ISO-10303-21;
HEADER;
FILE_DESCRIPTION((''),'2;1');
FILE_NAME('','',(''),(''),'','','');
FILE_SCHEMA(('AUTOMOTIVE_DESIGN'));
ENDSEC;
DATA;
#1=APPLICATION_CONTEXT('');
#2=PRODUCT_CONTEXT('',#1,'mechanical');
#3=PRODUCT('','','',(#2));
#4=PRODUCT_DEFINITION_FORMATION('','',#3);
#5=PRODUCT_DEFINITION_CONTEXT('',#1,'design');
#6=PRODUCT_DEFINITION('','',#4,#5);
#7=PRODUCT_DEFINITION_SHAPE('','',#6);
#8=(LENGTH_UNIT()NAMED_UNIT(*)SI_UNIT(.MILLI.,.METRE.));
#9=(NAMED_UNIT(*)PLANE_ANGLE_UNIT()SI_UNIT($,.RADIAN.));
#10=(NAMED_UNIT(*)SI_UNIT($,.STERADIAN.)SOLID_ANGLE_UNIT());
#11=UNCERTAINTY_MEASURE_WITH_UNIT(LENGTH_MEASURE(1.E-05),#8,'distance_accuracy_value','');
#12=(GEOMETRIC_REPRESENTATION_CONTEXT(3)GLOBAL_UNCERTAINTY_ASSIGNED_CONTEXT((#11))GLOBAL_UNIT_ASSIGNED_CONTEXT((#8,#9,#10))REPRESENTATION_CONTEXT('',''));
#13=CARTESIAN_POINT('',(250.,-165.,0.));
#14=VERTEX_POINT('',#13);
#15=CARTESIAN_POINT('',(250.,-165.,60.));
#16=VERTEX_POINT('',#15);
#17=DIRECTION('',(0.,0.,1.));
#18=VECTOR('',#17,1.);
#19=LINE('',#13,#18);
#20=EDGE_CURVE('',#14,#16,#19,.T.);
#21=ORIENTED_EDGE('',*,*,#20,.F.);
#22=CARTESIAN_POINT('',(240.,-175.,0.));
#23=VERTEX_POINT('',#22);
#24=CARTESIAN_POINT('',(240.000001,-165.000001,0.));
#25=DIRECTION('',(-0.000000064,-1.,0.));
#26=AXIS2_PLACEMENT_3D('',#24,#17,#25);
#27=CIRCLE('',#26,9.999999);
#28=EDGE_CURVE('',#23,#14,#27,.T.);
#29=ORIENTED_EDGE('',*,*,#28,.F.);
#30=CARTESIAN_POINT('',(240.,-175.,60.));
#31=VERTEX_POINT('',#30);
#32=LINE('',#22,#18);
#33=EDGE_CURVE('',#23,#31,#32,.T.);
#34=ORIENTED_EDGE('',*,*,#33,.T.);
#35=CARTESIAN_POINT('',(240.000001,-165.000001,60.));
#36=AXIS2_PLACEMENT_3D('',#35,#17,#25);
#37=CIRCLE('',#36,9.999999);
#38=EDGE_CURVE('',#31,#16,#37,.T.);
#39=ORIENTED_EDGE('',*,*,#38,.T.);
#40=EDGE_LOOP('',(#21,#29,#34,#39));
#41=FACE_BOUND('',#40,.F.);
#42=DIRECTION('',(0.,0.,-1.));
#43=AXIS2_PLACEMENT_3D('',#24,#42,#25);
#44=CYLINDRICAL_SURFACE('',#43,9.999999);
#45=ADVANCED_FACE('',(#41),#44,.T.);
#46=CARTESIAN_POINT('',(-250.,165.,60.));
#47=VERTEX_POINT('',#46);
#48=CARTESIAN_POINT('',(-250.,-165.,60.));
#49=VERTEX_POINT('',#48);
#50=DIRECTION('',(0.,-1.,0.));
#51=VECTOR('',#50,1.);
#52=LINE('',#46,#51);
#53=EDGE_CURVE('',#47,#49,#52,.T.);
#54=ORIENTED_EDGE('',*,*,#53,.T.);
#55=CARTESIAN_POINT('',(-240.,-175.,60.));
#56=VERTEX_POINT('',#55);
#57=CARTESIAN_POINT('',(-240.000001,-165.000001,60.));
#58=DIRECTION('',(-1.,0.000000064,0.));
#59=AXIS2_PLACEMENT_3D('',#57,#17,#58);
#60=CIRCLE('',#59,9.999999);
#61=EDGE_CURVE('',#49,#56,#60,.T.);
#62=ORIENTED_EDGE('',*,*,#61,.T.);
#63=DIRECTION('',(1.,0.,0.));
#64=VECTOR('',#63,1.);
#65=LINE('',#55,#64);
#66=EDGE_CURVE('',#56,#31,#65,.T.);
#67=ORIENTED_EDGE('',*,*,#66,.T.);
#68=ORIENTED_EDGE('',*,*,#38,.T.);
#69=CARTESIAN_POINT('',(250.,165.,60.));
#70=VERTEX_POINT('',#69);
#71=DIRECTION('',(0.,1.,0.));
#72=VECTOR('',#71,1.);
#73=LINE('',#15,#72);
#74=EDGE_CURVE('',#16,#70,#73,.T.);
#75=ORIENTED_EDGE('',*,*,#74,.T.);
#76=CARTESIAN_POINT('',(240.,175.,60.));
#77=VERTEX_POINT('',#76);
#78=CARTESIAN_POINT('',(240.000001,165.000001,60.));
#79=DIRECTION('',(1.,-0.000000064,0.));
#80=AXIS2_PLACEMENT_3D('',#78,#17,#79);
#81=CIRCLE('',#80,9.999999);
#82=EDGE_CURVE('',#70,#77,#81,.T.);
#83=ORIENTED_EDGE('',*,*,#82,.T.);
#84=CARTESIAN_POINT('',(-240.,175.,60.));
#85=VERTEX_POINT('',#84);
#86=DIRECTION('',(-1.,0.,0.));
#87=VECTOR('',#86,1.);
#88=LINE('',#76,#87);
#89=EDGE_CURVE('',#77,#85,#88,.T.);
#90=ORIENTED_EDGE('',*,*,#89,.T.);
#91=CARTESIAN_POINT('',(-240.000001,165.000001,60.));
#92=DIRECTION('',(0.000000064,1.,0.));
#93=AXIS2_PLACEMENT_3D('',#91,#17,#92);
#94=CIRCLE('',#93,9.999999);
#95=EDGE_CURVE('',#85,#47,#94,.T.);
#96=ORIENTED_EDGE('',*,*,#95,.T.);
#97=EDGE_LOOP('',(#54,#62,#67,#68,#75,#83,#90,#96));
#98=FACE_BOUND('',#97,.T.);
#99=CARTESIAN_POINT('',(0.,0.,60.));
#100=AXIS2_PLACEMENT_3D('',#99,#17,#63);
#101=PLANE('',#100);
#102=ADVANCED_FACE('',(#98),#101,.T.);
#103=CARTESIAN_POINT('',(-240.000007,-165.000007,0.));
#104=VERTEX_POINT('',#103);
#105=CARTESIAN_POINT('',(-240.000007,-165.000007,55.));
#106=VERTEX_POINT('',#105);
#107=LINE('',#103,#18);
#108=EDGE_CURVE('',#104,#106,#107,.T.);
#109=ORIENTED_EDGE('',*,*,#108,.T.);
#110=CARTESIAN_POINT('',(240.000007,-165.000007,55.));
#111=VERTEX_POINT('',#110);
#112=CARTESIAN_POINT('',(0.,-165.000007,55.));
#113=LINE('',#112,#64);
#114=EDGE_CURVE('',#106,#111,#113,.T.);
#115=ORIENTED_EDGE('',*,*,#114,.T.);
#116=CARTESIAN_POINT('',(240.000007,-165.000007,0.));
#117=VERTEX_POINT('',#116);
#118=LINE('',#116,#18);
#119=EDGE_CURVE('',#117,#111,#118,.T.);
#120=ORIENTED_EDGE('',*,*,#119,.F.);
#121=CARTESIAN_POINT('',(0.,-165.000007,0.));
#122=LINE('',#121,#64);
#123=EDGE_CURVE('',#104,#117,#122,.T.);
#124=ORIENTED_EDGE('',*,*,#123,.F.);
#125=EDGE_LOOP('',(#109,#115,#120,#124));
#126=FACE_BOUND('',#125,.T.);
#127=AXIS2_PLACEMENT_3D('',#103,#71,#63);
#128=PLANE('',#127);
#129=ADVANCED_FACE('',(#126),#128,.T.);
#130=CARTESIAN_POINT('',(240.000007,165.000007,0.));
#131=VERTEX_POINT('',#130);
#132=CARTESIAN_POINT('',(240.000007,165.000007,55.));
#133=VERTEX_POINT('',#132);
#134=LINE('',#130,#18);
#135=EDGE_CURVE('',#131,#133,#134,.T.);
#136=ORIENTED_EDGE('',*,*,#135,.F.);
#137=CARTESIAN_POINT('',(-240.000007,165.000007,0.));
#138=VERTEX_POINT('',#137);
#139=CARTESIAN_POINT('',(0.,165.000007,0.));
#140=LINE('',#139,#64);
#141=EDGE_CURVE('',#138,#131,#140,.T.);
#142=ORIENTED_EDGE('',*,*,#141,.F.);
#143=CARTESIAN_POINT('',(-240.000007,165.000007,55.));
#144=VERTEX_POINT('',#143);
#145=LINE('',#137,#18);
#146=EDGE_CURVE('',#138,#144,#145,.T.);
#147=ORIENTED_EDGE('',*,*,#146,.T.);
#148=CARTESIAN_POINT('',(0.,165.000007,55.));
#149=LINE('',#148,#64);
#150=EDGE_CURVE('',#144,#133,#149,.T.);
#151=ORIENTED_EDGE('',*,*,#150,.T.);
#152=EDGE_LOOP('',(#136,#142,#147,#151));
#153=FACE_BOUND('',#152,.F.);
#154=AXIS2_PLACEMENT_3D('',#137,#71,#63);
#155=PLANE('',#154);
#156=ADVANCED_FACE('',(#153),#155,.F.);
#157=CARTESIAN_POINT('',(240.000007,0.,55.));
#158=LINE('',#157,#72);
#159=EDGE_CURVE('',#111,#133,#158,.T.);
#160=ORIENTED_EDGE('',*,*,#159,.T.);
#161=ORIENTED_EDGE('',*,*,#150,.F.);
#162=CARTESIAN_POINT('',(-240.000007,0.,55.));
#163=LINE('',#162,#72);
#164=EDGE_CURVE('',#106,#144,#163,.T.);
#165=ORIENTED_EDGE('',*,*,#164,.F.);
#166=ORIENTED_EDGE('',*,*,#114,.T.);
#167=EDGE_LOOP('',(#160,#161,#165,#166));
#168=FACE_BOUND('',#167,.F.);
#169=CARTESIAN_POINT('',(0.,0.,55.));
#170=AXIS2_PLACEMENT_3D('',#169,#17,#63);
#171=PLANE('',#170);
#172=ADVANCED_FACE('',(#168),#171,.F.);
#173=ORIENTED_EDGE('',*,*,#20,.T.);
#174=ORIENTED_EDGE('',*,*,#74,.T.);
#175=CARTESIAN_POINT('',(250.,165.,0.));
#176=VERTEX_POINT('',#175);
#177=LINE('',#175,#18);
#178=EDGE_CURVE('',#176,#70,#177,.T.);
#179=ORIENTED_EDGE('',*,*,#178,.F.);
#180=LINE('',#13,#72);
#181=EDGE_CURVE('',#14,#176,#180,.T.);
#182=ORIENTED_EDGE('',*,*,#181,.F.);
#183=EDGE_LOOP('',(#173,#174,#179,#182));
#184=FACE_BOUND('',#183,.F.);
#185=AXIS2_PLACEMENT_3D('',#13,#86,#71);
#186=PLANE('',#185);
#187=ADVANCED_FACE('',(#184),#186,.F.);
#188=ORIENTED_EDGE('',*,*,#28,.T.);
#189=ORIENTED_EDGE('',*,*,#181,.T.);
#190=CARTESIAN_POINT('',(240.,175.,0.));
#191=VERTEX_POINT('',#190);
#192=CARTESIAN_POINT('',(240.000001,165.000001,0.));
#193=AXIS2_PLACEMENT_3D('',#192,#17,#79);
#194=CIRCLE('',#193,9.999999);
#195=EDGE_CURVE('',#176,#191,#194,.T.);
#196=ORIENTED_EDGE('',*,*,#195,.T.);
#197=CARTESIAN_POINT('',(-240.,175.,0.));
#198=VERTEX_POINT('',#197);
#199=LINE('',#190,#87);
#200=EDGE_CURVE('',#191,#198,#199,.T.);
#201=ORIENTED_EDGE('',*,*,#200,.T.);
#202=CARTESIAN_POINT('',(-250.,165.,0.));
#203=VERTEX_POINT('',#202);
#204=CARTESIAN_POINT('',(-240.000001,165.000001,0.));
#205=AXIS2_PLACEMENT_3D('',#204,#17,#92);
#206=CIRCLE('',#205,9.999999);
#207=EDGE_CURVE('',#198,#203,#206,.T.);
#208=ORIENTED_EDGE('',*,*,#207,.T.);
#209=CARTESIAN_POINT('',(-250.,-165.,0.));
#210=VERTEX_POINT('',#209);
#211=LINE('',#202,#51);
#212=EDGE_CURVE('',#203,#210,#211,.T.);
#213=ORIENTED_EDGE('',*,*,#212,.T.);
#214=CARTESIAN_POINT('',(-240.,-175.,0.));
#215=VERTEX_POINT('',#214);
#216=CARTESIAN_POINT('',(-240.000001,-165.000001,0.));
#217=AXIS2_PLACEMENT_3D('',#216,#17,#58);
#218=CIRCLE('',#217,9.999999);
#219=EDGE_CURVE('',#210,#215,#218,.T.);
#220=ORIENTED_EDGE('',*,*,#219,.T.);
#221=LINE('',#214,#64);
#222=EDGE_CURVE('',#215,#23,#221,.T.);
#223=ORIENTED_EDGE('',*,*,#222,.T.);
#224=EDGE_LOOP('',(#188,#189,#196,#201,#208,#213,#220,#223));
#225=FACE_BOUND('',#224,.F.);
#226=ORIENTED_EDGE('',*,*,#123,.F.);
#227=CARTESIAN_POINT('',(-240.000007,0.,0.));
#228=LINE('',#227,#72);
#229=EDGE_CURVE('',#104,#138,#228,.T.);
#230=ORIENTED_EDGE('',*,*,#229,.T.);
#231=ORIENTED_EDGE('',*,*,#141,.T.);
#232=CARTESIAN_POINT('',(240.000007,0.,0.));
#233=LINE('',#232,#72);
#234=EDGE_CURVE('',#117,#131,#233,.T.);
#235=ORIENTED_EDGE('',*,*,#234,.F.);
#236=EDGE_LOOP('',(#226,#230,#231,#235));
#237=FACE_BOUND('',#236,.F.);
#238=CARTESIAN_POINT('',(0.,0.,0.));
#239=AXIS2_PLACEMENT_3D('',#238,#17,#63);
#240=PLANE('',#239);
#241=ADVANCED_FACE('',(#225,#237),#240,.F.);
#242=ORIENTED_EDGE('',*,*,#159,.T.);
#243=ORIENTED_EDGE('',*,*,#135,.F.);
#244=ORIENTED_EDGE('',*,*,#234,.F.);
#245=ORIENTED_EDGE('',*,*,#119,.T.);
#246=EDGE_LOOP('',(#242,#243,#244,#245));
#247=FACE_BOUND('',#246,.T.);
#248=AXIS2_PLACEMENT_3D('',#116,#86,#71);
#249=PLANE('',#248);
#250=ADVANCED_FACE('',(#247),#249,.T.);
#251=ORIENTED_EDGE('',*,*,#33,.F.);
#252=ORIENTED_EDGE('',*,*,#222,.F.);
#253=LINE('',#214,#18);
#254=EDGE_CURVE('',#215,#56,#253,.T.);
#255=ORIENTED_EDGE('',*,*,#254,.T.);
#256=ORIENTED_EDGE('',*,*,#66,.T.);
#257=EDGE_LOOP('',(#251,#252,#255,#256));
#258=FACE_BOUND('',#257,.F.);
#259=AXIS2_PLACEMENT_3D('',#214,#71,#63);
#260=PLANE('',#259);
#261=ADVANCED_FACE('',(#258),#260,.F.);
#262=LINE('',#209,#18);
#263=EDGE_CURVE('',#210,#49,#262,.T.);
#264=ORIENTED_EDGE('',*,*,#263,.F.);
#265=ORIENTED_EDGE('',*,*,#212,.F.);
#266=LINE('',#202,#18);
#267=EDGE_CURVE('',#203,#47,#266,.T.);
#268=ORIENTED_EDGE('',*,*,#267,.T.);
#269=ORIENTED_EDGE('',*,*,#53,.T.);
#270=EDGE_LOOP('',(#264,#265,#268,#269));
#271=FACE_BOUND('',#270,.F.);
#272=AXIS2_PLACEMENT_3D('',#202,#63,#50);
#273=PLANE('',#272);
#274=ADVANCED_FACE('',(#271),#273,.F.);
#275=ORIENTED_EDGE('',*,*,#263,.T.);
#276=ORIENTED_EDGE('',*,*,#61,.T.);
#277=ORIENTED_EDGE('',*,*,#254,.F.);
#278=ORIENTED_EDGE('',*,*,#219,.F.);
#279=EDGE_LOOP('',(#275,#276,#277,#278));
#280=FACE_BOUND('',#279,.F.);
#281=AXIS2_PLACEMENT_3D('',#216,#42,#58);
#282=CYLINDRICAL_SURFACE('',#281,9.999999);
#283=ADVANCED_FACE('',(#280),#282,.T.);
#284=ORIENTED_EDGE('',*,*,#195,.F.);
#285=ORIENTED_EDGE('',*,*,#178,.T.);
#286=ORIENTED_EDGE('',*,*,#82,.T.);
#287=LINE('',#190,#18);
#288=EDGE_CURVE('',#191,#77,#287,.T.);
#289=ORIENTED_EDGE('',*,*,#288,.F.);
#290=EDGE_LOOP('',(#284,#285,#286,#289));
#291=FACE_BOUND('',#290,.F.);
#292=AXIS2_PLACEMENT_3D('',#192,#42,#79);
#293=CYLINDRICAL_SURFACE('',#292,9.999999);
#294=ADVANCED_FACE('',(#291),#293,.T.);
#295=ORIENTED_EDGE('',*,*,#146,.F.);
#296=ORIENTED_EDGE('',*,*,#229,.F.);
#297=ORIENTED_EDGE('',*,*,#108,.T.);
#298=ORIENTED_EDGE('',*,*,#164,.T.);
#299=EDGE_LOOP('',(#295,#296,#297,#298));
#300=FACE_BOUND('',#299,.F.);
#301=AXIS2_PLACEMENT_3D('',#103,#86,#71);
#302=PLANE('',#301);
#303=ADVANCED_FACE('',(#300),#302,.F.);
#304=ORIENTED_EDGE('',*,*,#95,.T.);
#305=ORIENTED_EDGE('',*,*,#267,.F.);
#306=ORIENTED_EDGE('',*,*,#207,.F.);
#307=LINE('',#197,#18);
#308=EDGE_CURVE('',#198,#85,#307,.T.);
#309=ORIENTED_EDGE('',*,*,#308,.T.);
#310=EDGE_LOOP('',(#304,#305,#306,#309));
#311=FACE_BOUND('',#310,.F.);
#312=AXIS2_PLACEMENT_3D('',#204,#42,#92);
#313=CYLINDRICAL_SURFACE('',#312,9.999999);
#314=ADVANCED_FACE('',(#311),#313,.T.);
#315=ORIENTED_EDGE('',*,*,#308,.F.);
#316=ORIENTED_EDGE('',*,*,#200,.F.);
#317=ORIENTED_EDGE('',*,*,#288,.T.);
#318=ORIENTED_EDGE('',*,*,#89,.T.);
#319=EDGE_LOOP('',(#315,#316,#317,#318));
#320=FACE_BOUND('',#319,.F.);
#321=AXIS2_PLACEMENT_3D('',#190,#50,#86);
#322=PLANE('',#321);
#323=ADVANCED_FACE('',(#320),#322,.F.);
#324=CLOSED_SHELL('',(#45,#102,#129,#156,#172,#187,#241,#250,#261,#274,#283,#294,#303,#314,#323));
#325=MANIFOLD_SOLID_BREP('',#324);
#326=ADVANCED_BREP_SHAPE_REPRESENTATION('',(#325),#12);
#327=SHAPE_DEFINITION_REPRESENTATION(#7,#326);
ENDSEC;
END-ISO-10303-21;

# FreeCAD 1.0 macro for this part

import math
import FreeCAD as App
import Part
import Sketcher
Q = App.Units.Quantity

doc = App.newDocument("Part")
body = doc.addObject("PartDesign::Body", "Body")

# Sketch on XY plane
sketch1 = body.newObject("Sketcher::SketchObject", "Sketch")
sketch1.AttachmentSupport = (doc.getObject("XY_Plane"), [""])
sketch1.MapMode = "FlatFace"
sketch1.addGeometry([
    Part.ArcOfCircle(Part.Circle(App.Vector(240.000001, 165.000001, 0), App.Vector(0, 0, 1), 9.999999), math.radians(-0.000004), math.radians(90.000004)),  # 0
    Part.LineSegment(App.Vector(240, 175, 0), App.Vector(-240, 175, 0)),  # 1
    Part.ArcOfCircle(Part.Circle(App.Vector(-240.000001, 165.000001, 0), App.Vector(0, 0, 1), 9.999999), math.radians(89.999996), math.radians(180.000004)),  # 2
    Part.LineSegment(App.Vector(-250, 165, 0), App.Vector(-250, -165, 0)),  # 3
    Part.ArcOfCircle(Part.Circle(App.Vector(-240.000001, -165.000001, 0), App.Vector(0, 0, 1), 9.999999), math.radians(179.999996), math.radians(270.000004)),  # 4
    Part.LineSegment(App.Vector(-240, -175, 0), App.Vector(240, -175, 0)),  # 5
    Part.ArcOfCircle(Part.Circle(App.Vector(240.000001, -165.000001, 0), App.Vector(0, 0, 1), 9.999999), math.radians(-90.000004), math.radians(0.000004)),  # 6
    Part.LineSegment(App.Vector(250, -165, 0), App.Vector(250, 165, 0)),  # 7
], False)
sketch1.addConstraint([
    Sketcher.Constraint("Tangent", 0, 2, 1, 1),
    Sketcher.Constraint("Tangent", 1, 2, 2, 1),
    Sketcher.Constraint("Tangent", 2, 2, 3, 1),
    Sketcher.Constraint("Tangent", 3, 2, 4, 1),
    Sketcher.Constraint("Tangent", 4, 2, 5, 1),
    Sketcher.Constraint("Tangent", 5, 2, 6, 1),
    Sketcher.Constraint("Tangent", 6, 2, 7, 1),
    Sketcher.Constraint("Tangent", 7, 2, 0, 1),
    Sketcher.Constraint("Horizontal", 1),
    Sketcher.Constraint("Vertical", 3),
    Sketcher.Constraint("Horizontal", 5),
    Sketcher.Constraint("Vertical", 7),
    Sketcher.Constraint("Equal", 0, 2),
    Sketcher.Constraint("Equal", 2, 4),
    Sketcher.Constraint("Equal", 4, 6),
    Sketcher.Constraint("Symmetric", 0, 3, 4, 3, -1, 1),
    Sketcher.Constraint("Radius", 0, Q("9.999999 mm")),
    Sketcher.Constraint("DistanceX", 1, 2, 1, 1, Q("480 mm")),
    Sketcher.Constraint("DistanceY", 3, 2, 3, 1, Q("330 mm")),
])
pad1 = body.newObject("PartDesign::Pad", "Pad")
pad1.Profile = sketch1
pad1.Length = 60

# Sketch on XY plane
sketch2 = body.newObject("Sketcher::SketchObject", "Sketch001")
sketch2.AttachmentSupport = (doc.getObject("XY_Plane"), [""])
sketch2.MapMode = "FlatFace"
sketch2.addGeometry([
    Part.LineSegment(App.Vector(-240.000007, 165.000007, 0), App.Vector(-240.000007, -165.000007, 0)),
    Part.LineSegment(App.Vector(-240.000007, -165.000007, 0), App.Vector(240.000007, -165.000007, 0)),
    Part.LineSegment(App.Vector(240.000007, -165.000007, 0), App.Vector(240.000007, 165.000007, 0)),
    Part.LineSegment(App.Vector(240.000007, 165.000007, 0), App.Vector(-240.000007, 165.000007, 0)),
], False)
sketch2.addConstraint([
    Sketcher.Constraint("Coincident", 0, 2, 1, 1),
    Sketcher.Constraint("Coincident", 1, 2, 2, 1),
    Sketcher.Constraint("Coincident", 2, 2, 3, 1),
    Sketcher.Constraint("Coincident", 3, 2, 0, 1),
    Sketcher.Constraint("Vertical", 0),
    Sketcher.Constraint("Horizontal", 1),
    Sketcher.Constraint("Vertical", 2),
    Sketcher.Constraint("Horizontal", 3),
    Sketcher.Constraint("Symmetric", 0, 2, 2, 2, -1, 1),
    Sketcher.Constraint("DistanceX", 1, 1, 1, 2, Q("480.000014 mm")),
    Sketcher.Constraint("DistanceY", 0, 2, 0, 1, Q("330.000014 mm")),
])
pocket1 = body.newObject("PartDesign::Pocket", "Pocket")
pocket1.Profile = sketch2
pocket1.Length = 55
pocket1.Reversed = True

doc.recompute()
